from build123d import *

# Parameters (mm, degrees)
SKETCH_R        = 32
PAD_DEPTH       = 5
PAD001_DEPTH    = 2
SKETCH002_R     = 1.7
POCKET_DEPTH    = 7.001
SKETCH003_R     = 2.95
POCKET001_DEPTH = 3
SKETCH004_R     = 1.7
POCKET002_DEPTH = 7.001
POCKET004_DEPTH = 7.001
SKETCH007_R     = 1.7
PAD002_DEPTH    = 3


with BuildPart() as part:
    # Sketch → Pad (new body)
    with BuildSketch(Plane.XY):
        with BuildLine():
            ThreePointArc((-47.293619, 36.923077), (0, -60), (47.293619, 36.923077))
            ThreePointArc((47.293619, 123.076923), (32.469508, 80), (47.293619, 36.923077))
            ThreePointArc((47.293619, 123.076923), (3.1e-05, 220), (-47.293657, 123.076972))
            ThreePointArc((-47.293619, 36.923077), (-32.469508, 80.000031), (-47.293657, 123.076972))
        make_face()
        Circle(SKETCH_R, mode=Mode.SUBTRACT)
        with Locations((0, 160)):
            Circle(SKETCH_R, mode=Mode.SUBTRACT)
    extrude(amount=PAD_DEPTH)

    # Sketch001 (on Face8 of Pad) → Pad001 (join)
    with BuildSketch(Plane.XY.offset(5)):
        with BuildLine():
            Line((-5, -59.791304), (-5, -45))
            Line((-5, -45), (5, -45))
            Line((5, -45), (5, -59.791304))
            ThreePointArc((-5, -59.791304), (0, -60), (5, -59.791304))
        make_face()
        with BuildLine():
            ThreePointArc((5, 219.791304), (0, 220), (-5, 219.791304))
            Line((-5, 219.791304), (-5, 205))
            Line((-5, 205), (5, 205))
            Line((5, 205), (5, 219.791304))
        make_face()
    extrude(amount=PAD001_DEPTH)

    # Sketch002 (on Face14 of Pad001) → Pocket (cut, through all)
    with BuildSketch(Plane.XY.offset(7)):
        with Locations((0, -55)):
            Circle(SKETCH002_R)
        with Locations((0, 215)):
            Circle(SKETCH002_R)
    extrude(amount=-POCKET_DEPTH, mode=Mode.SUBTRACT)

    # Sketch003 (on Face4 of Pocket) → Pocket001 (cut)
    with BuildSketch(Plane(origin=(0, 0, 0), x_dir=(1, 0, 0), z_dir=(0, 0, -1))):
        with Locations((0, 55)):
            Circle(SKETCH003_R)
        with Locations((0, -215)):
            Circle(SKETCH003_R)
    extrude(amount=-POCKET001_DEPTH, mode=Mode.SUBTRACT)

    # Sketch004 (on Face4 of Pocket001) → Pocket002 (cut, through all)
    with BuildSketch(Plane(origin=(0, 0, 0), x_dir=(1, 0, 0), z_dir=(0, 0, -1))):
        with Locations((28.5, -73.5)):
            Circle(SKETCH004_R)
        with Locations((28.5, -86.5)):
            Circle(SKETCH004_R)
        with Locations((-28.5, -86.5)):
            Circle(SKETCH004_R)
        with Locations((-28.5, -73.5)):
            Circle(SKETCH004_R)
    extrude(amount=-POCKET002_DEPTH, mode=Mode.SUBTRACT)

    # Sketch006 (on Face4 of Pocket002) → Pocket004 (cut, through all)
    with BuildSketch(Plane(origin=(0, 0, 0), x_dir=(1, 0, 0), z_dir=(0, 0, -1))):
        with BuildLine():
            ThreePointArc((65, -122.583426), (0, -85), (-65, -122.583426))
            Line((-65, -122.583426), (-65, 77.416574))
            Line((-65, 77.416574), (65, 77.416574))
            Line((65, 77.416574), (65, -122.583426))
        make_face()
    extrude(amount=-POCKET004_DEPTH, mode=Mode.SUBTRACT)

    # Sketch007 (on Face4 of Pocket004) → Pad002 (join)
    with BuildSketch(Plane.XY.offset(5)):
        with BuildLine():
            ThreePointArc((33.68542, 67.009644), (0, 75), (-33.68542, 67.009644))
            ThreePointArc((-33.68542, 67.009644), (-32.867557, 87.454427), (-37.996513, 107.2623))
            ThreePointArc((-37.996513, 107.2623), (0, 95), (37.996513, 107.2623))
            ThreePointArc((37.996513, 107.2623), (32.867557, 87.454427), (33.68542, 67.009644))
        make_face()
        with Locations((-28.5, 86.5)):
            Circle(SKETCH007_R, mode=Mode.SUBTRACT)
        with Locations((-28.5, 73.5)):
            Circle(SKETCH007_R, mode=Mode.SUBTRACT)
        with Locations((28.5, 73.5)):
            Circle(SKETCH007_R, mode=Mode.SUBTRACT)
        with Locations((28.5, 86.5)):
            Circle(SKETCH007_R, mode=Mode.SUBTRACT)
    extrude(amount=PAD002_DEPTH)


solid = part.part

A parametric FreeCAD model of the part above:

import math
import FreeCAD as App
import Part
import Sketcher

V = App.Vector
Q = App.Units.Quantity

doc = App.newDocument("Part")
body = doc.addObject("PartDesign::Body", "Body")

# Sketch on XY plane
sketch1 = doc.addObject("Sketcher::SketchObject", "Sketch")
body.addObject(sketch1)
sketch1.AttachmentSupport = (doc.XY_Plane, [""])
sketch1.MapMode = "FlatFace"
sketch1.addGeometry([
    Part.ArcOfCircle(Part.Circle(V(0, 0, 0), V(0, 0, 1), 60), math.radians(142.020128), math.radians(397.979872)),  # 0
    Part.ArcOfCircle(Part.Circle(V(102.469509, 80, 0), V(0, 0, 1), 70.000001), math.radians(142.020128), math.radians(217.979872)),  # 1
    Part.ArcOfCircle(Part.Circle(V(0, 160, 0), V(0, 0, 1), 60), math.radians(-37.979873), math.radians(217.979813)),  # 2
    Part.ArcOfCircle(Part.Circle(V(-102.469509, 80, 0), V(0, 0, 1), 70.000001), math.radians(-37.979872), math.radians(37.979922)),  # 3
    Part.Circle(V(0, 0, 0), V(0, 0, 1), 32),  # 4
    Part.Circle(V(0, 160, 0), V(0, 0, 1), 32),  # 5
], False)
sketch1.addConstraint([
    Sketcher.Constraint("Coincident", 0, 2, 1, 2),
    Sketcher.Constraint("Coincident", 1, 1, 2, 1),
    Sketcher.Constraint("Coincident", 2, 2, 3, 2),
    Sketcher.Constraint("Coincident", 3, 1, 0, 1),
    Sketcher.Constraint("Coincident", 0, 3, -1, 1),
    Sketcher.Constraint("Coincident", 4, 3, -1, 1),
    Sketcher.Constraint("Coincident", 5, 3, 2, 3),
    Sketcher.Constraint("PointOnObject", 2, 3, -2),
    Sketcher.Constraint("Diameter", 4, Q("64 mm")),
    Sketcher.Constraint("Diameter", 5, Q("64 mm")),
    Sketcher.Constraint("Radius", 0, Q("60 mm")),
    Sketcher.Constraint("Radius", 1, Q("70.000001 mm")),
    Sketcher.Constraint("Radius", 2, Q("60 mm")),
    Sketcher.Constraint("Radius", 3, Q("70.000001 mm")),
    Sketcher.Constraint("DistanceY", -1, 1, 1, 3, Q("80 mm")),
    Sketcher.Constraint("DistanceX", -1, 1, 0, 2, Q("47.293619 mm")),
    Sketcher.Constraint("DistanceX", -1, 1, 1, 1, Q("47.293619 mm")),
    Sketcher.Constraint("DistanceX", 3, 1, -1, 1, Q("47.293619 mm")),
    Sketcher.Constraint("DistanceY", 3, 3, 2, 2, Q("43.076972 mm")),
])
pad1 = doc.addObject("PartDesign::Pad", "Pad")
body.addObject(pad1)
pad1.Profile = sketch1
pad1.Length = 5

# Sketch on XY plane
sketch2 = doc.addObject("Sketcher::SketchObject", "Sketch001")
body.addObject(sketch2)
sketch2.AttachmentSupport = (doc.XY_Plane, [""])
sketch2.MapMode = "FlatFace"
sketch2.AttachmentOffset = App.Placement(V(0, 0, 5), App.Rotation())
sketch2.addGeometry([
    Part.LineSegment(V(-5, -45, 0), V(-5, -60, 0)),  # 0
    Part.ArcOfCircle(Part.Circle(V(0, 0, 0), V(0, 0, 1), 60), math.radians(-94.78), math.radians(-85.22)),  # 1
    Part.LineSegment(V(5, -60, 0), V(5, -45, 0)),  # 2
    Part.LineSegment(V(5, -45, 0), V(-5, -45, 0)),  # 3
    Part.ArcOfCircle(Part.Circle(V(0, 160, 0), V(0, 0, 1), 60), math.radians(85.22), math.radians(94.78)),  # 4
    Part.LineSegment(V(-5, 220, 0), V(-5, 205, 0)),  # 5
    Part.LineSegment(V(-5, 205, 0), V(5, 205, 0)),  # 6
    Part.LineSegment(V(5, 205, 0), V(5, 220, 0)),  # 7
], False)
sketch2.addConstraint([
    Sketcher.Constraint("Coincident", 0, 2, 1, 1),
    Sketcher.Constraint("Coincident", 1, 2, 2, 1),
    Sketcher.Constraint("Coincident", 2, 2, 3, 1),
    Sketcher.Constraint("Coincident", 3, 2, 0, 1),
    Sketcher.Constraint("Coincident", 4, 2, 5, 1),
    Sketcher.Constraint("Coincident", 5, 2, 6, 1),
    Sketcher.Constraint("Coincident", 6, 2, 7, 1),
    Sketcher.Constraint("Coincident", 7, 2, 4, 1),
    Sketcher.Constraint("Vertical", 0),
    Sketcher.Constraint("Vertical", 2),
    Sketcher.Constraint("Horizontal", 3),
    Sketcher.Constraint("Vertical", 5),
    Sketcher.Constraint("Horizontal", 6),
    Sketcher.Constraint("Vertical", 7),
    Sketcher.Constraint("Equal", 1, 4),
    Sketcher.Constraint("Symmetric", 0, 2, 1, 2, -2),
    Sketcher.Constraint("Symmetric", 4, 2, 7, 2, -2),
    Sketcher.Constraint("Vertical", 3, 2, 4, 2),
    Sketcher.Constraint("Equal", 2, 5),
    Sketcher.Constraint("DistanceX", 3, 2, 3, 1, Q("10 mm")),
    Sketcher.Constraint("DistanceY", 2, 2, -1, 1, Q("45 mm")),
    Sketcher.Constraint("DistanceY", -1, 1, 5, 2, Q("205 mm")),
    Sketcher.Constraint("Radius", 1, Q("60.000082 mm")),
    Sketcher.Constraint("DistanceY", 0, 2, 0, 1, Q("14.791304 mm")),
])
pad2 = doc.addObject("PartDesign::Pad", "Pad001")
body.addObject(pad2)
pad2.Profile = sketch2
pad2.Length = 2

# Sketch on XY plane
sketch3 = doc.addObject("Sketcher::SketchObject", "Sketch002")
body.addObject(sketch3)
sketch3.AttachmentSupport = (doc.XY_Plane, [""])
sketch3.MapMode = "FlatFace"
sketch3.AttachmentOffset = App.Placement(V(0, 0, 7), App.Rotation())
sketch3.addGeometry([
    Part.Circle(V(0, -55, 0), V(0, 0, 1), 1.7),
    Part.Circle(V(0, 215, 0), V(0, 0, 1), 1.7),
], False)
sketch3.addConstraint([
    Sketcher.Constraint("Equal", 0, 1),
    Sketcher.Constraint("PointOnObject", 0, 3, -2),
    Sketcher.Constraint("PointOnObject", 1, 3, -2),
    Sketcher.Constraint("Diameter", 0, Q("3.4 mm")),
    Sketcher.Constraint("DistanceY", 0, 3, -1, 1, Q("55 mm")),
    Sketcher.Constraint("DistanceY", -1, 1, 1, 3, Q("215 mm")),
])
pocket1 = doc.addObject("PartDesign::Pocket", "Pocket")
body.addObject(pocket1)
pocket1.Profile = sketch3
pocket1.Type = "ThroughAll"

# Sketch on XY plane
sketch4 = doc.addObject("Sketcher::SketchObject", "Sketch003")
body.addObject(sketch4)
sketch4.AttachmentSupport = (doc.XY_Plane, [""])
sketch4.MapMode = "FlatFace"
sketch4.addGeometry([
    Part.Circle(V(0, -55, 0), V(0, 0, 1), 3),
    Part.Circle(V(0, 215, 0), V(0, 0, 1), 3),
], False)
sketch4.addConstraint([
    Sketcher.Constraint("Equal", 0, 1),
    Sketcher.Constraint("PointOnObject", 0, 3, -2),
    Sketcher.Constraint("PointOnObject", 1, 3, -2),
    Sketcher.Constraint("Diameter", 0, Q("5.9 mm")),
    Sketcher.Constraint("DistanceY", 0, 3, -1, 1, Q("55 mm")),
    Sketcher.Constraint("DistanceY", -1, 1, 1, 3, Q("215 mm")),
])
pocket2 = doc.addObject("PartDesign::Pocket", "Pocket001")
body.addObject(pocket2)
pocket2.Profile = sketch4
pocket2.Length = 3
pocket2.Reversed = True

# Sketch on XY plane
sketch5 = doc.addObject("Sketcher::SketchObject", "Sketch004")
body.addObject(sketch5)
sketch5.AttachmentSupport = (doc.XY_Plane, [""])
sketch5.MapMode = "FlatFace"
sketch5.addGeometry([
    Part.Circle(V(28.5, 73.5, 0), V(0, 0, 1), 1.7),
    Part.Circle(V(28.5, 86.5, 0), V(0, 0, 1), 1.7),
    Part.Circle(V(-28.5, 86.5, 0), V(0, 0, 1), 1.7),
    Part.Circle(V(-28.5, 73.5, 0), V(0, 0, 1), 1.7),
], False)
sketch5.addConstraint([
    Sketcher.Constraint("Equal", 0, 1),
    Sketcher.Constraint("Equal", 1, 2),
    Sketcher.Constraint("Equal", 2, 3),
    Sketcher.Constraint("Symmetric", 1, 3, 2, 3, -2),
    Sketcher.Constraint("Symmetric", 0, 3, 3, 3, -2),
    Sketcher.Constraint("Vertical", 0, 3, 1, 3),
    Sketcher.Constraint("Diameter", 0, Q("3.4 mm")),
    Sketcher.Constraint("DistanceY", 0, 3, 1, 3, Q("13 mm")),
    Sketcher.Constraint("DistanceX", 2, 3, 1, 3, Q("57 mm")),
    Sketcher.Constraint("DistanceY", -1, 1, 0, 3, Q("73.5 mm")),
])
pocket3 = doc.addObject("PartDesign::Pocket", "Pocket002")
body.addObject(pocket3)
pocket3.Profile = sketch5
pocket3.Type = "ThroughAll"
pocket3.Reversed = True

# Sketch on XY plane
sketch6 = doc.addObject("Sketcher::SketchObject", "Sketch005")
body.addObject(sketch6)
sketch6.AttachmentSupport = (doc.XY_Plane, [""])
sketch6.MapMode = "FlatFace"
sketch6.addGeometry([
    Part.ArcOfCircle(Part.Circle(V(0, 160, 0), V(0, 0, 1), 75), math.radians(-150), math.radians(-30)),
    Part.LineSegment(V(65, 123, 0), V(65, -77, 0)),
    Part.LineSegment(V(65, -77, 0), V(-65, -77, 0)),
    Part.LineSegment(V(-65, -77, 0), V(-65, 123, 0)),
], False)
sketch6.addConstraint([
    Sketcher.Constraint("Coincident", 0, 2, 1, 1),
    Sketcher.Constraint("Coincident", 1, 2, 2, 1),
    Sketcher.Constraint("Coincident", 2, 2, 3, 1),
    Sketcher.Constraint("Coincident", 3, 2, 0, 1),
    Sketcher.Constraint("Vertical", 1),
    Sketcher.Constraint("Horizontal", 2),
    Sketcher.Constraint("Vertical", 3),
    Sketcher.Constraint("Symmetric", 0, 2, 3, 2, -2),
    Sketcher.Constraint("Radius", 0, Q("75 mm")),
    Sketcher.Constraint("DistanceX", 2, 2, 2, 1, Q("130 mm")),
    Sketcher.Constraint("DistanceY", 1, 2, 1, 1, Q("200 mm")),
    Sketcher.Constraint("DistanceY", -1, 1, 0, 3, Q("160 mm")),
])
pocket4 = doc.addObject("PartDesign::Pocket", "Pocket003")
body.addObject(pocket4)
pocket4.Profile = sketch6
pocket4.Type = "ThroughAll"
pocket4.Reversed = True

# Sketch on XY plane
sketch7 = doc.addObject("Sketcher::SketchObject", "Sketch006")
body.addObject(sketch7)
sketch7.AttachmentSupport = (doc.XY_Plane, [""])
sketch7.MapMode = "FlatFace"
sketch7.AttachmentOffset = App.Placement(V(0, 0, 5), App.Rotation())
sketch7.addGeometry([
    Part.ArcOfCircle(Part.Circle(V(0, 0, 0), V(0, 0, 1), 75), math.radians(63), math.radians(117)),  # 0
    Part.ArcOfCircle(Part.Circle(V(102.5, 80, 0), V(0, 0, 1), 70), math.radians(157), math.radians(191)),  # 1
    Part.ArcOfCircle(Part.Circle(V(0, 160, 0), V(0, 0, 1), 65), math.radians(-126), math.radians(-54)),  # 2
    Part.ArcOfCircle(Part.Circle(V(-102.5, 80, 0), V(0, 0, 1), 70), math.radians(-11), math.radians(23)),  # 3
    Part.Circle(V(28.5, 73.5, 0), V(0, 0, 1), 1.7),  # 4
    Part.Circle(V(-28.5, 73.5, 0), V(0, 0, 1), 1.7),  # 5
    Part.Circle(V(28.5, 86.5, 0), V(0, 0, 1), 1.7),  # 6
    Part.Circle(V(-28.5, 86.5, 0), V(0, 0, 1), 1.7),  # 7
], False)
sketch7.addConstraint([
    Sketcher.Constraint("Coincident", 0, 1, 1, 2),
    Sketcher.Constraint("Coincident", 1, 1, 2, 2),
    Sketcher.Constraint("Coincident", 2, 1, 3, 2),
    Sketcher.Constraint("Coincident", 3, 1, 0, 2),
    Sketcher.Constraint("Coincident", 0, 3, -1, 1),
    Sketcher.Constraint("Equal", 1, 3),
    Sketcher.Constraint("Equal", 4, 5),
    Sketcher.Constraint("Equal", 5, 6),
    Sketcher.Constraint("Equal", 6, 7),
    Sketcher.Constraint("Symmetric", 1, 3, 3, 3, -2),
    Sketcher.Constraint("Symmetric", 4, 3, 5, 3, -2),
    Sketcher.Constraint("Symmetric", 6, 3, 7, 3, -2),
    Sketcher.Constraint("PointOnObject", 2, 3, -2),
    Sketcher.Constraint("Vertical", 4, 3, 6, 3),
    Sketcher.Constraint("Radius", 2, Q("65 mm")),
    Sketcher.Constraint("Diameter", 4, Q("3.4 mm")),
    Sketcher.Constraint("DistanceY", -1, 1, 1, 3, Q("79.999999 mm")),
    Sketcher.Constraint("DistanceY", -1, 1, 2, 3, Q("160 mm")),
    Sketcher.Constraint("DistanceX", 5, 3, 4, 3, Q("57 mm")),
    Sketcher.Constraint("DistanceY", 4, 3, 6, 3, Q("13 mm")),
    Sketcher.Constraint("DistanceY", -1, 1, 4, 3, Q("73.5 mm")),
    Sketcher.Constraint("Radius", 0, Q("74.999994 mm")),
    Sketcher.Constraint("Radius", 1, Q("70.000006 mm")),
    Sketcher.Constraint("DistanceX", 3, 3, 2, 1, Q("64.473001 mm")),
])
pad3 = doc.addObject("PartDesign::Pad", "Pad002")
body.addObject(pad3)
pad3.Profile = sketch7
pad3.Length = 3

doc.recompute()
